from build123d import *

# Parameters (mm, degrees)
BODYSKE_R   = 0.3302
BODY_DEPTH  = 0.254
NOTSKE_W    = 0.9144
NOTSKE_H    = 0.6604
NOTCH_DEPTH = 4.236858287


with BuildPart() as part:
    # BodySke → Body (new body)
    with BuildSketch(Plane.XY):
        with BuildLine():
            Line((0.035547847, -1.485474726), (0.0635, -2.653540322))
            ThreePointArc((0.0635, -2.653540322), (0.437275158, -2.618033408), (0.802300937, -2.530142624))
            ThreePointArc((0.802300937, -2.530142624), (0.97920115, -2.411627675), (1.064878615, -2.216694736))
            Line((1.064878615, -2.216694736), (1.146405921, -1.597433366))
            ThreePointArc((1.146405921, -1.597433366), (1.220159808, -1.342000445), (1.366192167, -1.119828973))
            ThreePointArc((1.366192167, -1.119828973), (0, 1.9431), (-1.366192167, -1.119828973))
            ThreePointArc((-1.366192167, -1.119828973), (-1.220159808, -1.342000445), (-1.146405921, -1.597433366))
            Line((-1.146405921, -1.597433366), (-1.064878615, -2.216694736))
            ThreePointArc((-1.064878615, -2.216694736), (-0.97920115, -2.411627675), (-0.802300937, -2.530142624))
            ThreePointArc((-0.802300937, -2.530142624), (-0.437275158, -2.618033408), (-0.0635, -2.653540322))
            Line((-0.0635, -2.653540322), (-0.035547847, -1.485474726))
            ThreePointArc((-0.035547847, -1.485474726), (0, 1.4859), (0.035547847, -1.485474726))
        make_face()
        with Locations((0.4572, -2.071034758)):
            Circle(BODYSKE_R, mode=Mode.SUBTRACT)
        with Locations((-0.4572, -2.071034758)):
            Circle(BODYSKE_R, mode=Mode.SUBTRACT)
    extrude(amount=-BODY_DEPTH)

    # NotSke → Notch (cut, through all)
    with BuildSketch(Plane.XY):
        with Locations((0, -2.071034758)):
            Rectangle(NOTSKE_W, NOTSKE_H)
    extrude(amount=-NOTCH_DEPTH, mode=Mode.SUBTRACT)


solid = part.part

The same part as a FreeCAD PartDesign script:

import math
import FreeCAD as App
import Part
import Sketcher

V = App.Vector
Q = App.Units.Quantity

doc = App.newDocument("Part")
params = doc.addObject("Spreadsheet::Sheet", "Params")
for row, (alias, value) in enumerate([
    ("sketch1_diameter", "0.026 in"),
    ("sketch1_radius", "0.015 in"),
    ("pad1_length", "0.01 in"),
    ("sketch2_width", "0.036 in"),
    ("sketch2_height", "0.026 in"),
], start=1):
    params.set(f"A{row}", alias)
    params.set(f"B{row}", "=" + value)
    params.setAlias(f"B{row}", alias)

body = doc.addObject("PartDesign::Body", "Body")

sketch1 = body.newObject("Sketcher::SketchObject", "Sketch")
sketch1.AttachmentSupport = (doc.getObject("XY_Plane"), [""])
sketch1.MapMode = "FlatFace"
sketch1.addGeometry(Part.LineSegment(V(0.04, -1.49, 0), V(0.06, -2.65, 0)), False)
sketch1.addGeometry(Part.ArcOfCircle(Part.Circle(V(0, 0, 0), V(0, 0, 1), 2.65), math.radians(-88.63), math.radians(-72.41)), False)
sketch1.addGeometry(Part.ArcOfCircle(Part.Circle(V(0.69, -2.17, 0), V(0, 0, 1), 0.38), math.radians(-72), math.radians(-7)), False)
sketch1.addGeometry(Part.LineSegment(V(1.06, -2.22, 0), V(1.15, -1.6, 0)), False)
sketch1.addGeometry(Part.ArcOfCircle(Part.Circle(V(2.03, -1.71, 0), V(0, 0, 1), 0.89), math.radians(138), math.radians(172)), False)
sketch1.addGeometry(Part.ArcOfCircle(Part.Circle(V(0, 0.11, 0), V(0, 0, 1), 1.84), math.radians(-42), math.radians(222)), False)
sketch1.addGeometry(Part.ArcOfCircle(Part.Circle(V(-2.03, -1.71, 0), V(0, 0, 1), 0.89), math.radians(8), math.radians(42)), False)
sketch1.addGeometry(Part.LineSegment(V(-1.15, -1.6, 0), V(-1.06, -2.22, 0)), False)
sketch1.addGeometry(Part.ArcOfCircle(Part.Circle(V(-0.69, -2.17, 0), V(0, 0, 1), 0.38), math.radians(-173), math.radians(-108)), False)
sketch1.addGeometry(Part.ArcOfCircle(Part.Circle(V(0, 0, 0), V(0, 0, 1), 2.65), math.radians(-107.59), math.radians(-91.37)), False)
sketch1.addGeometry(Part.LineSegment(V(-0.06, -2.65, 0), V(-0.04, -1.49, 0)), False)
sketch1.addGeometry(Part.ArcOfCircle(Part.Circle(V(0, 0, 0), V(0, 0, 1), 1.49), math.radians(-89), math.radians(269)), False)
sketch1.addGeometry(Part.Circle(V(-0.46, -2.07, 0), V(0, 0, 1), 0.33), False)
sketch1.addGeometry(Part.Circle(V(0.46, -2.07, 0), V(0, 0, 1), 0.33), False)
sketch1.addConstraint(Sketcher.Constraint("Coincident", 0, 2, 1, 1))
sketch1.addConstraint(Sketcher.Constraint("Tangent", 1, 2, 2, 1))
sketch1.addConstraint(Sketcher.Constraint("Tangent", 2, 2, 3, 1))
sketch1.addConstraint(Sketcher.Constraint("Tangent", 3, 2, 4, 2))
sketch1.addConstraint(Sketcher.Constraint("Tangent", 4, 1, 5, 1))
sketch1.addConstraint(Sketcher.Constraint("Tangent", 5, 2, 6, 2))
sketch1.addConstraint(Sketcher.Constraint("Tangent", 6, 1, 7, 1))
sketch1.addConstraint(Sketcher.Constraint("Tangent", 7, 2, 8, 1))
sketch1.addConstraint(Sketcher.Constraint("Tangent", 8, 2, 9, 1))
sketch1.addConstraint(Sketcher.Constraint("Coincident", 9, 2, 10, 1))
sketch1.addConstraint(Sketcher.Constraint("Coincident", 10, 2, 11, 2))
sketch1.addConstraint(Sketcher.Constraint("Coincident", 11, 1, 0, 1))
sketch1.addConstraint(Sketcher.Constraint("Coincident", 1, 3, -1, 1))
sketch1.addConstraint(Sketcher.Constraint("Coincident", 9, 3, -1, 1))
sketch1.addConstraint(Sketcher.Constraint("Coincident", 11, 3, -1, 1))
sketch1.addConstraint(Sketcher.Constraint("Equal", 4, 6))
sketch1.addConstraint(Sketcher.Constraint("Equal", 2, 8))
sketch1.addConstraint(Sketcher.Constraint("Equal", 1, 9))
sketch1.addConstraint(Sketcher.Constraint("Equal", 12, 13))
sketch1.addConstraint(Sketcher.Constraint("Symmetric", 4, 3, 6, 3, -2))
sketch1.addConstraint(Sketcher.Constraint("Symmetric", 12, 3, 13, 3, -2))
sketch1.addConstraint(Sketcher.Constraint("Horizontal", 2, 3, 8, 3))
sketch1.addConstraint(Sketcher.Constraint("Horizontal", 0, 2, 9, 2))
sketch1.addConstraint(Sketcher.Constraint("Horizontal", 10, 2, 11, 1))
sketch1.addConstraint(Sketcher.Constraint("Diameter", 12, Q("0.026 in")))
sketch1.addConstraint(Sketcher.Constraint("Radius", 2, Q("0.015 in")))
sketch1.addConstraint(Sketcher.Constraint("Angle", 3, Q("82.5 deg")))
sketch1.addConstraint(Sketcher.Constraint("Radius", 1, Q("0.1045 in")))
sketch1.addConstraint(Sketcher.Constraint("Radius", 11, Q("0.0585 in")))
sketch1.addConstraint(Sketcher.Constraint("DistanceX", 12, 3, -1, 1, Q("0.018 in")))
sketch1.addConstraint(Sketcher.Constraint("DistanceX", 9, 2, 0, 2, Q("0.005 in")))
sketch1.addConstraint(Sketcher.Constraint("Radius", 4, 0.888407))
sketch1.addConstraint(Sketcher.Constraint("Radius", 5, 1.836153))
sketch1.addConstraint(Sketcher.Constraint("DistanceX", -1, 1, 1, 2, 0.802301))
sketch1.addConstraint(Sketcher.Constraint("DistanceY", 2, 2, 4, 3, 0.503301))
sketch1.addConstraint(Sketcher.Constraint("DistanceY", 13, 3, 3, 2, 0.473601))
sketch1.addConstraint(Sketcher.Constraint("DistanceY", 12, 3, 10, 2, 0.58556))
sketch1.setExpression("Constraints[24]", "Params.sketch1_diameter")
sketch1.setExpression("Constraints[25]", "Params.sketch1_radius")
pad1 = body.newObject("PartDesign::Pad", "Pad")
pad1.Profile = sketch1
pad1.setExpression("Length", "Params.pad1_length")
pad1.Reversed = True

sketch2 = body.newObject("Sketcher::SketchObject", "Sketch001")
sketch2.AttachmentSupport = (doc.getObject("XY_Plane"), [""])
sketch2.MapMode = "FlatFace"
sketch2.addGeometry(Part.LineSegment(V(-0.5, -1.7, 0), V(-0.5, -2.4, 0)), False)
sketch2.addGeometry(Part.LineSegment(V(-0.5, -2.4, 0), V(0.5, -2.4, 0)), False)
sketch2.addGeometry(Part.LineSegment(V(0.5, -2.4, 0), V(0.5, -1.7, 0)), False)
sketch2.addGeometry(Part.LineSegment(V(0.5, -1.7, 0), V(-0.5, -1.7, 0)), False)
sketch2.addConstraint(Sketcher.Constraint("Coincident", 0, 2, 1, 1))
sketch2.addConstraint(Sketcher.Constraint("Coincident", 1, 2, 2, 1))
sketch2.addConstraint(Sketcher.Constraint("Coincident", 2, 2, 3, 1))
sketch2.addConstraint(Sketcher.Constraint("Coincident", 3, 2, 0, 1))
sketch2.addConstraint(Sketcher.Constraint("Vertical", 0))
sketch2.addConstraint(Sketcher.Constraint("Horizontal", 1))
sketch2.addConstraint(Sketcher.Constraint("Vertical", 2))
sketch2.addConstraint(Sketcher.Constraint("Horizontal", 3))
sketch2.addConstraint(Sketcher.Constraint("DistanceX", 1, 1, 1, 2, Q("0.036 in")))
sketch2.addConstraint(Sketcher.Constraint("DistanceY", 0, 2, 0, 1, Q("0.026 in")))
sketch2.addConstraint(Sketcher.Constraint("DistanceX", 0, 2, -1, 1, Q("0.018 in")))
sketch2.addConstraint(Sketcher.Constraint("DistanceY", 0, 2, -1, 1, 2.401235))
sketch2.setExpression("Constraints[8]", "Params.sketch2_width")
sketch2.setExpression("Constraints[9]", "Params.sketch2_height")
pocket1 = body.newObject("PartDesign::Pocket", "Pocket")
pocket1.Profile = sketch2
pocket1.Type = "ThroughAll"

doc.recompute()
